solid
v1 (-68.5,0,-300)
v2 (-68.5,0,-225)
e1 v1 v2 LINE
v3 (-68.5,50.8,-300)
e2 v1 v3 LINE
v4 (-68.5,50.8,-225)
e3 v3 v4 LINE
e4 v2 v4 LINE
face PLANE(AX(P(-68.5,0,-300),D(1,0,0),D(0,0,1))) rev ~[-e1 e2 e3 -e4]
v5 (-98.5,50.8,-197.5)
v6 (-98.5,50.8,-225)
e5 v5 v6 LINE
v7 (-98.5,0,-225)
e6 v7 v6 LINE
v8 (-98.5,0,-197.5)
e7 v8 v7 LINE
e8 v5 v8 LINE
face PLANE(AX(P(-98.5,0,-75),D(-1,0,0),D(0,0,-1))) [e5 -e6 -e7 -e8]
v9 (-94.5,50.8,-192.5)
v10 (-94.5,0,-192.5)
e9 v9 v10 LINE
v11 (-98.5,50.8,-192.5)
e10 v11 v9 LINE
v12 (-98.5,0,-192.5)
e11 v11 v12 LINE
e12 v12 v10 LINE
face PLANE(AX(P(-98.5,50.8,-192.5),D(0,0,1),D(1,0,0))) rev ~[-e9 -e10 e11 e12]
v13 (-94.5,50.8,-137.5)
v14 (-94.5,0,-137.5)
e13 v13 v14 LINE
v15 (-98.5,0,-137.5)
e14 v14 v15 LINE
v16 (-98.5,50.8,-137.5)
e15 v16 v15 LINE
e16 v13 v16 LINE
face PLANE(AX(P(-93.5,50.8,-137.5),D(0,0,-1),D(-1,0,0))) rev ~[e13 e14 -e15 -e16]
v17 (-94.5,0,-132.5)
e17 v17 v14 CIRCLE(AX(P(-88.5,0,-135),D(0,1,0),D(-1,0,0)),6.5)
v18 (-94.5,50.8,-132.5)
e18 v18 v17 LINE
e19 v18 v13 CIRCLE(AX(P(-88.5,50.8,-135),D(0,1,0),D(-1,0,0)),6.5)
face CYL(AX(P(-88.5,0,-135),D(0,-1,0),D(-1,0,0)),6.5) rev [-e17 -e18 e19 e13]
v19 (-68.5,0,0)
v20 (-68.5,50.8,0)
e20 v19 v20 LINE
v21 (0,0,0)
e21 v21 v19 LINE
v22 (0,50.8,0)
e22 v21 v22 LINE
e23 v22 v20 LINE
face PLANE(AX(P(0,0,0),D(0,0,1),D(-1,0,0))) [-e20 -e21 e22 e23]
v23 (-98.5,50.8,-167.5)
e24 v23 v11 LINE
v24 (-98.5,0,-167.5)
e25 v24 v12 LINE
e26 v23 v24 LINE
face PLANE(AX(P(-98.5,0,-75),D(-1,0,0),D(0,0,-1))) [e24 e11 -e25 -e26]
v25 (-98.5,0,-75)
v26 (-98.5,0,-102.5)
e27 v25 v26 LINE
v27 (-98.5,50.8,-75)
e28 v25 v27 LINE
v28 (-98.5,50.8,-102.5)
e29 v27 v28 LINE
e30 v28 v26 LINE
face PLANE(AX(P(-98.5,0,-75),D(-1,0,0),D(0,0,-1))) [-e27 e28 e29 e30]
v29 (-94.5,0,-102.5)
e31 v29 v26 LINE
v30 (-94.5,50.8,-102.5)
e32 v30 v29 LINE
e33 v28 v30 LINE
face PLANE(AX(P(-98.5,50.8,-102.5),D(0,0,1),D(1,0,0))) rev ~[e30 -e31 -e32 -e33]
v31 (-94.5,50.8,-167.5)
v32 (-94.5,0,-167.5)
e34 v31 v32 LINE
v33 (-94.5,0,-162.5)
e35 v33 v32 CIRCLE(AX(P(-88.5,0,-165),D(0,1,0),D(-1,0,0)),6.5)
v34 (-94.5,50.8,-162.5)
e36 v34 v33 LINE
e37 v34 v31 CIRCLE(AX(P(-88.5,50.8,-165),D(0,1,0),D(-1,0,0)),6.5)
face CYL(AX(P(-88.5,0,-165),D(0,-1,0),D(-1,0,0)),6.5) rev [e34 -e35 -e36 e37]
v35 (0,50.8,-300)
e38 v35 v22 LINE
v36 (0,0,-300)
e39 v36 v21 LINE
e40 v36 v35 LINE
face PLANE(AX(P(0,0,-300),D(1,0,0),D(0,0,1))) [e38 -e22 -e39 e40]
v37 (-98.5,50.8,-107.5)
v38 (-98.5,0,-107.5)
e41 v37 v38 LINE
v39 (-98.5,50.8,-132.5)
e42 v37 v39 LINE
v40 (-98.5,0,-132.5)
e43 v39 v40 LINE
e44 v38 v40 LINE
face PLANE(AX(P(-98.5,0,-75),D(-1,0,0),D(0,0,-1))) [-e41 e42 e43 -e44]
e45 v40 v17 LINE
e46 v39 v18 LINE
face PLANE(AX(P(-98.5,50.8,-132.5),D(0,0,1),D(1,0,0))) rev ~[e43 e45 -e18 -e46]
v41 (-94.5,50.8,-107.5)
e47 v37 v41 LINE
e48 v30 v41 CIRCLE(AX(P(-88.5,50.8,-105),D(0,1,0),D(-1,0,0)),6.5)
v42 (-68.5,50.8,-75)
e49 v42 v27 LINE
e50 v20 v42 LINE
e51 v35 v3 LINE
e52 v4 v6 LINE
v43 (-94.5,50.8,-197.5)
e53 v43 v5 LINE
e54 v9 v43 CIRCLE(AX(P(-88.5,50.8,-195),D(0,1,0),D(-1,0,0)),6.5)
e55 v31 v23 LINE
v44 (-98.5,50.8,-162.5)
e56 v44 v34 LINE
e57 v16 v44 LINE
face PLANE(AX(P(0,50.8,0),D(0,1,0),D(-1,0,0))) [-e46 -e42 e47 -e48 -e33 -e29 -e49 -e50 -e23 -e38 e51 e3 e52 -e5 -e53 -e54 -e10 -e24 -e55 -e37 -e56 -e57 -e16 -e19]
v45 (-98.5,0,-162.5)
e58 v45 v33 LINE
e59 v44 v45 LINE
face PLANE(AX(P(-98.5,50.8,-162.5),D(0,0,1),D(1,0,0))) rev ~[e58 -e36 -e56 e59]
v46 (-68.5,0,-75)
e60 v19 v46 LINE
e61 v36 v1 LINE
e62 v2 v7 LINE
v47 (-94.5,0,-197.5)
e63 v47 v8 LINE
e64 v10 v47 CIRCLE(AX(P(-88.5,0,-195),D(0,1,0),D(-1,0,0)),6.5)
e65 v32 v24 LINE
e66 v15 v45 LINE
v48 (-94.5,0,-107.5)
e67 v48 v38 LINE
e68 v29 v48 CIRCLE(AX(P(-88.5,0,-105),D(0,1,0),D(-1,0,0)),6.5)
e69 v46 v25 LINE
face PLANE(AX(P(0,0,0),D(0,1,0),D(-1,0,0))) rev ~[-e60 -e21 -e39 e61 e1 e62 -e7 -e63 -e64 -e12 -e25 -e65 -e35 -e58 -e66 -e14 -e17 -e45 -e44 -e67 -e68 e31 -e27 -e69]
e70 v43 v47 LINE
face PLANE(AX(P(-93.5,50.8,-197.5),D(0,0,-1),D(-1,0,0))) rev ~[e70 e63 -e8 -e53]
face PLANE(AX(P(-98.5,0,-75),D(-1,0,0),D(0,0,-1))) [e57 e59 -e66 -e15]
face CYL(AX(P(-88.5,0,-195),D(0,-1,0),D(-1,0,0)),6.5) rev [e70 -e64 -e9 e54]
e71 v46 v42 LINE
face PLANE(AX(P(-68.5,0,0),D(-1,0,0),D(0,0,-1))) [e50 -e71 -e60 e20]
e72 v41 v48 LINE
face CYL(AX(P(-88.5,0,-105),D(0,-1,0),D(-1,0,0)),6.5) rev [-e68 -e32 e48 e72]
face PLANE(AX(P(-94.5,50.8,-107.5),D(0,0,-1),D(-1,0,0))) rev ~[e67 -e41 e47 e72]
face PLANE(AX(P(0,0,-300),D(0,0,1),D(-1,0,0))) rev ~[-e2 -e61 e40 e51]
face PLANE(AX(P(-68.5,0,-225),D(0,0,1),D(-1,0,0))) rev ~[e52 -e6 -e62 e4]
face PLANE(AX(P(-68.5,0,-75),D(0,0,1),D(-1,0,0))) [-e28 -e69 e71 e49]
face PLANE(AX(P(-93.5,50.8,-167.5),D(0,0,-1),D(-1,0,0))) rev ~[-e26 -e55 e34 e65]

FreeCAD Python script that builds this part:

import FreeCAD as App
import Part
import Sketcher

V = App.Vector

doc = App.newDocument("Part")
body = doc.addObject("PartDesign::Body", "Body")

# Sketch on XZ plane
sketch1 = body.newObject("Sketcher::SketchObject", "Sketch")
sketch1.AttachmentSupport = (doc.getObject("XZ_Plane"), [""])
sketch1.MapMode = "FlatFace"
sketch1.addGeometry([
    Part.LineSegment(V(0, 0, 0), V(0, -300, 0)),  # 0
    Part.LineSegment(V(0, -300, 0), V(-68, -300, 0)),  # 1
    Part.LineSegment(V(-68, -300, 0), V(-68, -225, 0)),  # 2
    Part.LineSegment(V(-68, -225, 0), V(-98, -225, 0)),  # 3
    Part.LineSegment(V(-98, -225, 0), V(-98, -75, 0)),  # 4
    Part.LineSegment(V(-98, -75, 0), V(-68, -75, 0)),  # 5
    Part.LineSegment(V(-68, -75, 0), V(-68, 0, 0)),  # 6
    Part.LineSegment(V(-68, 0, 0), V(0, 0, 0)),  # 7
    Part.Circle(V(-88, -195, 0), V(0, 0, 1), 6),  # 8
    Part.Circle(V(-88, -165, 0), V(0, 0, 1), 6),  # 9
    Part.Circle(V(-88, -135, 0), V(0, 0, 1), 6),  # 10
    Part.Circle(V(-88, -105, 0), V(0, 0, 1), 6),  # 11
], False)
sketch1.addConstraint([
    Sketcher.Constraint("Coincident", 0, 2, 1, 1),
    Sketcher.Constraint("Coincident", 1, 2, 2, 1),
    Sketcher.Constraint("Coincident", 2, 2, 3, 1),
    Sketcher.Constraint("Coincident", 3, 2, 4, 1),
    Sketcher.Constraint("Coincident", 4, 2, 5, 1),
    Sketcher.Constraint("Coincident", 5, 2, 6, 1),
    Sketcher.Constraint("Coincident", 6, 2, 7, 1),
    Sketcher.Constraint("Coincident", 7, 2, 0, 1),
    Sketcher.Constraint("Vertical", 0),
    Sketcher.Constraint("Horizontal", 1),
    Sketcher.Constraint("Vertical", 2),
    Sketcher.Constraint("Horizontal", 3),
    Sketcher.Constraint("Vertical", 4),
    Sketcher.Constraint("Horizontal", 5),
    Sketcher.Constraint("Vertical", 6),
    Sketcher.Constraint("Horizontal", 7),
    Sketcher.Constraint("Coincident", 7, 2, -1, 1),
    Sketcher.Constraint("Equal", 8, 9),
    Sketcher.Constraint("Equal", 9, 10),
    Sketcher.Constraint("Equal", 10, 11),
    Sketcher.Constraint("Vertical", 8, 3, 9, 3),
    Sketcher.Constraint("Vertical", 9, 3, 10, 3),
    Sketcher.Constraint("Vertical", 10, 3, 11, 3),
    Sketcher.Constraint("Vertical", 2, 2, 5, 2),
    Sketcher.Constraint("Equal", 2, 6),
    Sketcher.Constraint("Diameter", 8, 13.0),
    Sketcher.Constraint("DistanceX", 3, 2, 3, 1, 30.0),
    Sketcher.Constraint("DistanceY", 2, 1, 2, 2, 75.0),
    Sketcher.Constraint("DistanceY", 4, 1, 4, 2, 150.0),
    Sketcher.Constraint("DistanceX", 1, 2, 1, 1, 68.5),
    Sketcher.Constraint("DistanceY", 8, 3, 9, 3, 30.0),
    Sketcher.Constraint("DistanceY", 9, 3, 10, 3, 30.0),
    Sketcher.Constraint("DistanceY", 10, 3, 11, 3, 30.0),
    Sketcher.Constraint("DistanceY", 2, 2, 8, 3, 30.0),
    Sketcher.Constraint("DistanceX", 3, 2, 8, 3, 10.0),
])
pad1 = body.newObject("PartDesign::Pad", "Pad")
pad1.Profile = sketch1
pad1.Length = 50.8
pad1.Reversed = True

# Sketch on XZ plane
sketch2 = body.newObject("Sketcher::SketchObject", "Sketch001")
sketch2.AttachmentSupport = (doc.getObject("XZ_Plane"), [""])
sketch2.MapMode = "FlatFace"
sketch2.AttachmentOffset = App.Placement(V(0, 0, -50.8), App.Rotation())
sketch2.addGeometry([
    Part.LineSegment(V(-94, -198, 0), V(-98, -198, 0)),  # 0
    Part.LineSegment(V(-98, -198, 0), V(-98, -192, 0)),  # 1
    Part.LineSegment(V(-98, -192, 0), V(-94, -192, 0)),  # 2
    Part.LineSegment(V(-94, -192, 0), V(-94, -198, 0)),  # 3
    Part.LineSegment(V(-98, -108, 0), V(-98, -102, 0)),  # 4
    Part.LineSegment(V(-98, -102, 0), V(-94, -102, 0)),  # 5
    Part.LineSegment(V(-94, -102, 0), V(-94, -108, 0)),  # 6
    Part.LineSegment(V(-94, -108, 0), V(-98, -108, 0)),  # 7
    Part.LineSegment(V(-94, -138, 0), V(-98, -138, 0)),  # 8
    Part.LineSegment(V(-98, -138, 0), V(-98, -132, 0)),  # 9
    Part.LineSegment(V(-98, -132, 0), V(-94, -132, 0)),  # 10
    Part.LineSegment(V(-94, -132, 0), V(-94, -138, 0)),  # 11
    Part.LineSegment(V(-94, -168, 0), V(-98, -168, 0)),  # 12
    Part.LineSegment(V(-98, -168, 0), V(-98, -162, 0)),  # 13
    Part.LineSegment(V(-98, -162, 0), V(-94, -162, 0)),  # 14
    Part.LineSegment(V(-94, -162, 0), V(-94, -168, 0)),  # 15
], False)
sketch2.addConstraint([
    Sketcher.Constraint("Coincident", 0, 2, 1, 1),
    Sketcher.Constraint("Coincident", 1, 2, 2, 1),
    Sketcher.Constraint("Coincident", 2, 2, 3, 1),
    Sketcher.Constraint("Coincident", 3, 2, 0, 1),
    Sketcher.Constraint("Coincident", 4, 2, 5, 1),
    Sketcher.Constraint("Coincident", 5, 2, 6, 1),
    Sketcher.Constraint("Coincident", 6, 2, 7, 1),
    Sketcher.Constraint("Coincident", 7, 2, 4, 1),
    Sketcher.Constraint("Coincident", 8, 2, 9, 1),
    Sketcher.Constraint("Coincident", 9, 2, 10, 1),
    Sketcher.Constraint("Coincident", 10, 2, 11, 1),
    Sketcher.Constraint("Coincident", 11, 2, 8, 1),
    Sketcher.Constraint("Coincident", 12, 2, 13, 1),
    Sketcher.Constraint("Coincident", 13, 2, 14, 1),
    Sketcher.Constraint("Coincident", 14, 2, 15, 1),
    Sketcher.Constraint("Coincident", 15, 2, 12, 1),
    Sketcher.Constraint("Horizontal", 0),
    Sketcher.Constraint("Vertical", 1),
    Sketcher.Constraint("Horizontal", 2),
    Sketcher.Constraint("Vertical", 3),
    Sketcher.Constraint("Vertical", 4),
    Sketcher.Constraint("Horizontal", 5),
    Sketcher.Constraint("Vertical", 6),
    Sketcher.Constraint("Horizontal", 7),
    Sketcher.Constraint("Horizontal", 8),
    Sketcher.Constraint("Vertical", 9),
    Sketcher.Constraint("Horizontal", 10),
    Sketcher.Constraint("Vertical", 11),
    Sketcher.Constraint("Horizontal", 12),
    Sketcher.Constraint("Vertical", 13),
    Sketcher.Constraint("Horizontal", 14),
    Sketcher.Constraint("Vertical", 15),
    Sketcher.Constraint("Vertical", 1, 2, 4, 2),
    Sketcher.Constraint("Vertical", 3, 2, 5, 2),
    Sketcher.Constraint("Vertical", 7, 2, 8, 2),
    Sketcher.Constraint("Vertical", 6, 2, 10, 2),
    Sketcher.Constraint("Vertical", 9, 2, 12, 2),
    Sketcher.Constraint("Vertical", 11, 2, 14, 2),
    Sketcher.Constraint("Equal", 14, 1),
    Sketcher.Constraint("Equal", 3, 4),
    Sketcher.Constraint("Equal", 6, 9),
    Sketcher.Constraint("Equal", 11, 13),
    Sketcher.Constraint("DistanceX", 0, 2, 0, 1, 5.0),
    Sketcher.Constraint("DistanceY", 8, 2, 7, 2, 30.0),
    Sketcher.Constraint("DistanceY", 0, 2, 12, 2, 30.0),
    Sketcher.Constraint("DistanceY", 12, 2, 8, 2, 30.0),
    Sketcher.Constraint("DistanceX", 0, 2, -1, 1, 98.5),
    Sketcher.Constraint("DistanceY", 0, 2, -1, 1, 197.5),
])
pocket1 = body.newObject("PartDesign::Pocket", "Pocket")
pocket1.Profile = sketch2
pocket1.Length = 50.8
pocket1.Reversed = True

doc.recompute()
